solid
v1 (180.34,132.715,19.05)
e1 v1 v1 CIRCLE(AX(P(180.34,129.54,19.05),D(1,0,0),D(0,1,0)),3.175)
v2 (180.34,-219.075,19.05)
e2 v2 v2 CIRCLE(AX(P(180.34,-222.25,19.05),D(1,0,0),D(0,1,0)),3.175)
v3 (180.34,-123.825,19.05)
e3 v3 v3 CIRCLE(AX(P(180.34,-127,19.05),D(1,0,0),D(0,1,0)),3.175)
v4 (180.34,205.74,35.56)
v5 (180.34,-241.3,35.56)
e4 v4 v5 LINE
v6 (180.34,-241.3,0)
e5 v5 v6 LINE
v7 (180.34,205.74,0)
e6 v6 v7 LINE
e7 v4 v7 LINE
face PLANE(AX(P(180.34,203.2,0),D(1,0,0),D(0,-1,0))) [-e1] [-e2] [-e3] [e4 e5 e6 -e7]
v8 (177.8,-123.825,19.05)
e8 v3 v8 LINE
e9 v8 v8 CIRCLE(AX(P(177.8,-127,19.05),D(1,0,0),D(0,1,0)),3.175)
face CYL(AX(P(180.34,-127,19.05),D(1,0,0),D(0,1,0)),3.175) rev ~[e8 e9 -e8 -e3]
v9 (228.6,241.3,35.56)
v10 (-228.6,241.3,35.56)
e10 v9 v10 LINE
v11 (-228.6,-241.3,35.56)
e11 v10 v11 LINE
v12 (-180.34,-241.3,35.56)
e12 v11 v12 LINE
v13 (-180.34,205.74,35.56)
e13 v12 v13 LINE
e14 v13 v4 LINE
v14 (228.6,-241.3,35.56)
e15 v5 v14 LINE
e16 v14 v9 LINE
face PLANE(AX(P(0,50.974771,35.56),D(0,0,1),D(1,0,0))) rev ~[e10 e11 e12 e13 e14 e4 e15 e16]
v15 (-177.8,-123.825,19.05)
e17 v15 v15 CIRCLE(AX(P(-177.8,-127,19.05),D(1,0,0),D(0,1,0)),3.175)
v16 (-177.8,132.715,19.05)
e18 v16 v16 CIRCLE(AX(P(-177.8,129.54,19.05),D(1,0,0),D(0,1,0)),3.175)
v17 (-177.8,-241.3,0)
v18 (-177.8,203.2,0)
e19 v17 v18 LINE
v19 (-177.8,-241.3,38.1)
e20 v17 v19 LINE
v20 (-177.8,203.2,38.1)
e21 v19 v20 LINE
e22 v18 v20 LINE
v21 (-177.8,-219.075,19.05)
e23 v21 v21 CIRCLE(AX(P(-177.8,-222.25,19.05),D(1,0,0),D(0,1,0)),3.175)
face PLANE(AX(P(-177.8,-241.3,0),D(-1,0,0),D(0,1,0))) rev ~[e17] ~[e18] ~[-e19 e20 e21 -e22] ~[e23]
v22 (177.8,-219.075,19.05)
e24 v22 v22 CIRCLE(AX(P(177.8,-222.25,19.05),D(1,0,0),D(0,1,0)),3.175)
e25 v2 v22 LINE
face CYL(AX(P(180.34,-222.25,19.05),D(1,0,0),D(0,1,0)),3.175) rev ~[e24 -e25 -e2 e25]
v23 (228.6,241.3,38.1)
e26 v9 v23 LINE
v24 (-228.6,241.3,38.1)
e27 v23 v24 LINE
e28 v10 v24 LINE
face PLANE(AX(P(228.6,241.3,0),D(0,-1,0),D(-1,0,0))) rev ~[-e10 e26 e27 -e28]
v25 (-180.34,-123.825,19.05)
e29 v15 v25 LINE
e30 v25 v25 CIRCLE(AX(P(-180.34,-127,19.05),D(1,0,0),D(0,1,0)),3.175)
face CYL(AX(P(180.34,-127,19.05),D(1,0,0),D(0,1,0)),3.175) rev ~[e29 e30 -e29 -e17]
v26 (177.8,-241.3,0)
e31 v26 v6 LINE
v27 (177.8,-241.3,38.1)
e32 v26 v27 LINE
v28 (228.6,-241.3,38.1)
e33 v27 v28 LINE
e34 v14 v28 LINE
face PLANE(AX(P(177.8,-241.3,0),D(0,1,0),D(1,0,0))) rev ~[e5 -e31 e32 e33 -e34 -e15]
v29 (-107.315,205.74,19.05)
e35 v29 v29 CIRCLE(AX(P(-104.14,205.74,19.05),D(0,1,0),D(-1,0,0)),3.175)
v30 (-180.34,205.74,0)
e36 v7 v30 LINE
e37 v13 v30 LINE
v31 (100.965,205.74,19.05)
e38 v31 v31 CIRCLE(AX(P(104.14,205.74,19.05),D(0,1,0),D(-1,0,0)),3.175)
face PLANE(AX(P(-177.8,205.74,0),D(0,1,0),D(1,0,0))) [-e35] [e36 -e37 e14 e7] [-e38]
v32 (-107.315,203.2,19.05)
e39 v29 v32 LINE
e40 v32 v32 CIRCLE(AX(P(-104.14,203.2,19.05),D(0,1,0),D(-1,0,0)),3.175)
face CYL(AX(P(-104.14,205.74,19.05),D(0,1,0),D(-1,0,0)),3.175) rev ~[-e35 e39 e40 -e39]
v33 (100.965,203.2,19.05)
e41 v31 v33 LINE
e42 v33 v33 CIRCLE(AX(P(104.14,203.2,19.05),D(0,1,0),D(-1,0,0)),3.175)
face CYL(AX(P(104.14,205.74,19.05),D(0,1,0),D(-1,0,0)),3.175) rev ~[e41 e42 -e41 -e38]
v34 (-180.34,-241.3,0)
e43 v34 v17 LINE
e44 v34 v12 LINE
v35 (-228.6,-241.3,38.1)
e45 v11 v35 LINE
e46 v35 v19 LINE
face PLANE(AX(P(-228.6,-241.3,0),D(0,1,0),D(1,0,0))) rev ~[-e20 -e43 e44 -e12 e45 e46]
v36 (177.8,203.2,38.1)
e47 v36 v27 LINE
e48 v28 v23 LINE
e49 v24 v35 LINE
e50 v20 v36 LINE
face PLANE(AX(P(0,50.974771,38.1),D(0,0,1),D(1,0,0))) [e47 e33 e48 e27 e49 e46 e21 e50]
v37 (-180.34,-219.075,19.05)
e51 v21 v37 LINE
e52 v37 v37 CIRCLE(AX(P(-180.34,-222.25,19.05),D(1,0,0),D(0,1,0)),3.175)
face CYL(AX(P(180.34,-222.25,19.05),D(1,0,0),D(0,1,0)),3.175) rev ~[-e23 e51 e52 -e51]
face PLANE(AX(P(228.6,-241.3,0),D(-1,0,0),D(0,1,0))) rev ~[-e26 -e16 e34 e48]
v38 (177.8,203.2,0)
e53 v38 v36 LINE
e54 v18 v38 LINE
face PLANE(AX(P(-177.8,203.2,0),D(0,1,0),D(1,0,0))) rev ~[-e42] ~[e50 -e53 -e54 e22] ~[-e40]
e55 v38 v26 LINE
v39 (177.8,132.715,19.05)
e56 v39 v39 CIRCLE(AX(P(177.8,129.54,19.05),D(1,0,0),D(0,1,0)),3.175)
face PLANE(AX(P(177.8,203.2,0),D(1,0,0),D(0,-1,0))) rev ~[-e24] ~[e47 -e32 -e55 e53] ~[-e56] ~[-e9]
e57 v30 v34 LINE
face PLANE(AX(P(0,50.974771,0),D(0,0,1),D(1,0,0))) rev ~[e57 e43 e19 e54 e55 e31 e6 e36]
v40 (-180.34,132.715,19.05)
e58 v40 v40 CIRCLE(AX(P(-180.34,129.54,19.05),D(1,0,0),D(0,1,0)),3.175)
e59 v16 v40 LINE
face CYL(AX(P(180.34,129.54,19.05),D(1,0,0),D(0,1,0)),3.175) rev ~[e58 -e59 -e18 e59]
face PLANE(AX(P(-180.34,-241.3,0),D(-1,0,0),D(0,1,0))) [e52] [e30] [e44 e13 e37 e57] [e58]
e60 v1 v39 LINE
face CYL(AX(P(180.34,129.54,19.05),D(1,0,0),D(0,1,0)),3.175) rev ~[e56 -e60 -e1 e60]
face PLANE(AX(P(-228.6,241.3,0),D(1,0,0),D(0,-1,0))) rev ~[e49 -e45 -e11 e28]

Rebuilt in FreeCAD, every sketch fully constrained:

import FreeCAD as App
import Part
import Sketcher

V = App.Vector
Q = App.Units.Quantity


def faces_at(feature, points):
    """Names of the faces that lie closest to the given points."""
    faces = feature.Shape.Faces
    near = lambda p: min(range(len(faces)), key=lambda i: faces[i].distToShape(Part.Vertex(*p))[0])
    return sorted({f"Face{near(p) + 1}" for p in points})


def add_polygon(sketch, points):
    """Adds a closed chain of lines whose ends are joined by coincident constraints."""
    first, n = sketch.GeometryCount, len(points)
    for a, b in zip(points, points[1:] + points[:1]):
        sketch.addGeometry(Part.LineSegment(App.Vector(*a, 0), App.Vector(*b, 0)), False)
    for i in range(n):
        sketch.addConstraint(Sketcher.Constraint("Coincident", first + i, 2, first + (i + 1) % n, 1))

doc = App.newDocument("Part")
params = doc.addObject("Spreadsheet::Sheet", "Params")
for row, (alias, value) in enumerate([
    ("sketch1_width", "14 in"),
    ("sketch1_width2", "2 in"),
    ("sketch1_height", "19 in"),
    ("sketch1_height2", "17.5 in"),
    ("pad1_length", "1.5 in"),
    ("thickness_wall", "0.1 in"),
    ("sketch2_diameter", "0.25 in"),
    ("sketch3_diameter", "0.25 in"),
], start=1):
    params.set(f"A{row}", alias)
    params.set(f"B{row}", "=" + value)
    params.setAlias(f"B{row}", alias)

body = doc.addObject("PartDesign::Body", "Body")

# Sketch on XY plane
sketch1 = body.newObject("Sketcher::SketchObject", "Sketch")
sketch1.AttachmentSupport = (doc.getObject("XY_Plane"), [""])
sketch1.MapMode = "FlatFace"
add_polygon(sketch1, [(-177.8, -241.3), (-177.8, 203.2), (177.8, 203.2), (177.8, -241.3), (228.6, -241.3), (228.6, 241.3), (-228.6, 241.3), (-228.6, -241.3)])  # lines 0-7
sketch1.addConstraint([
    Sketcher.Constraint("Vertical", 0),
    Sketcher.Constraint("Horizontal", 1),
    Sketcher.Constraint("Vertical", 2),
    Sketcher.Constraint("Horizontal", 3),
    Sketcher.Constraint("Vertical", 4),
    Sketcher.Constraint("Horizontal", 5),
    Sketcher.Constraint("Vertical", 6),
    Sketcher.Constraint("Horizontal", 7),
    Sketcher.Constraint("Symmetric", 3, 2, 5, 2, -1, 1),
    Sketcher.Constraint("Symmetric", 2, 2, 7, 2, -2),
    Sketcher.Constraint("DistanceX", 1, 1, 1, 2, Q("14 in")),
    Sketcher.Constraint("DistanceX", 3, 1, 3, 2, Q("2 in")),
    Sketcher.Constraint("DistanceY", 4, 1, 4, 2, Q("19 in")),
    Sketcher.Constraint("DistanceY", 0, 1, 0, 2, Q("17.5 in")),
])
sketch1.setExpression("Constraints[18]", "Params.sketch1_width")
sketch1.setExpression("Constraints[19]", "Params.sketch1_width2")
sketch1.setExpression("Constraints[20]", "Params.sketch1_height")
sketch1.setExpression("Constraints[21]", "Params.sketch1_height2")
pad1 = body.newObject("PartDesign::Pad", "Pad")
pad1.Profile = sketch1
pad1.setExpression("Length", "Params.pad1_length")
doc.recompute()

thickness = body.newObject("PartDesign::Thickness", "Thickness")
thickness.Base = (pad1, faces_at(pad1, [
    (-182.88, 0, 0),
    (-228.6, 0, 19.05),
    (0, 241.3, 19.05),
    (228.6, 0, 19.05),
    (203.2, -241.3, 19.05),
    (-203.2, -241.3, 19.05),
]))
thickness.setExpression("Value", "Params.thickness_wall")
thickness.Reversed = True
thickness.Join = "Intersection"

# Sketch on YZ plane
sketch2 = body.newObject("Sketcher::SketchObject", "Sketch001")
sketch2.AttachmentSupport = (doc.getObject("YZ_Plane"), [""])
sketch2.MapMode = "FlatFace"
sketch2.AttachmentOffset = App.Placement(V(0, 0, 7.1 * 25.4), App.Rotation())
sketch2.addGeometry([
    Part.Circle(V(-222.25, 19.05, 0), V(0, 0, 1), 3.175),
    Part.Circle(V(-127, 19.05, 0), V(0, 0, 1), 3.175),
    Part.Circle(V(129.54, 19.05, 0), V(0, 0, 1), 3.175),
], False)
sketch2.addConstraint([
    Sketcher.Constraint("Equal", 0, 1),
    Sketcher.Constraint("Equal", 1, 2),
    Sketcher.Constraint("Horizontal", 0, 3, 1, 3),
    Sketcher.Constraint("Horizontal", 1, 3, 2, 3),
    Sketcher.Constraint("Diameter", 0, Q("0.25 in")),
    Sketcher.Constraint("DistanceX", 1, 3, -1, 1, Q("5 in")),
    Sketcher.Constraint("DistanceX", -1, 1, 2, 3, Q("5.1 in")),
    Sketcher.Constraint("DistanceX", 0, 3, -1, 1, Q("8.75 in")),
    Sketcher.Constraint("DistanceY", -1, 1, 0, 3, Q("0.75 in")),
])
sketch2.setExpression("Constraints[4]", "Params.sketch2_diameter")
pocket1 = body.newObject("PartDesign::Pocket", "Pocket")
pocket1.Profile = sketch2
pocket1.Type = "ThroughAll"

# Sketch on XZ plane
sketch3 = body.newObject("Sketcher::SketchObject", "Sketch002")
sketch3.AttachmentSupport = (doc.getObject("XZ_Plane"), [""])
sketch3.MapMode = "FlatFace"
sketch3.AttachmentOffset = App.Placement(V(0, 0, -8.1 * 25.4), App.Rotation())
sketch3.addGeometry([
    Part.Circle(V(104.14, 19.05, 0), V(0, 0, 1), 3.175),
    Part.Circle(V(-104.14, 19.05, 0), V(0, 0, 1), 3.175),
], False)
sketch3.addConstraint([
    Sketcher.Constraint("Equal", 0, 1),
    Sketcher.Constraint("Symmetric", 0, 3, 1, 3, -2),
    Sketcher.Constraint("Diameter", 0, Q("0.25 in")),
    Sketcher.Constraint("DistanceX", -1, 1, 0, 3, Q("4.1 in")),
    Sketcher.Constraint("DistanceY", -1, 1, 0, 3, Q("0.75 in")),
])
sketch3.setExpression("Constraints[2]", "Params.sketch3_diameter")
pocket2 = body.newObject("PartDesign::Pocket", "Pocket001")
pocket2.Profile = sketch3
pocket2.Type = "ThroughAll"
pocket2.Reversed = True

doc.recompute()
